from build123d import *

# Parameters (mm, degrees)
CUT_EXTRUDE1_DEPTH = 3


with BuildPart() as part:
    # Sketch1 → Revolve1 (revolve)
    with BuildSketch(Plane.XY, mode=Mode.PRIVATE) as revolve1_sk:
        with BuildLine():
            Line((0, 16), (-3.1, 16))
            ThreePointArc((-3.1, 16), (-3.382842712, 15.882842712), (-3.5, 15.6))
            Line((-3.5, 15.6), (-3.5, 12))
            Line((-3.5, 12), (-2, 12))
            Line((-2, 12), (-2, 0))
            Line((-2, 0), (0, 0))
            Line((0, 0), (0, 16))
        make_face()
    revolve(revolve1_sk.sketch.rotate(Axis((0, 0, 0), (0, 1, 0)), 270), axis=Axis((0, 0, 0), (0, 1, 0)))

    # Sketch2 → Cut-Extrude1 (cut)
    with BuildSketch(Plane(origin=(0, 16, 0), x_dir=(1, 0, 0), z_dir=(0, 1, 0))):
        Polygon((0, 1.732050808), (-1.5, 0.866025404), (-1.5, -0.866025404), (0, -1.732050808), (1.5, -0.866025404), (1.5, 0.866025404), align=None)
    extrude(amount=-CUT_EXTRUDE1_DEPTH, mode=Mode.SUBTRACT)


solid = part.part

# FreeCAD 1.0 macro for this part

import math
import FreeCAD as App
import Part
import Sketcher
from FreeCAD import Vector
Q = App.Units.Quantity


def add_polygon(sketch, points):
    """Adds a closed chain of lines whose ends are joined by coincident constraints."""
    first, n = sketch.GeometryCount, len(points)
    for a, b in zip(points, points[1:] + points[:1]):
        sketch.addGeometry(Part.LineSegment(App.Vector(*a, 0), App.Vector(*b, 0)), False)
    for i in range(n):
        sketch.addConstraint(Sketcher.Constraint("Coincident", first + i, 2, first + (i + 1) % n, 1))

doc = App.newDocument("Part")
body = doc.addObject("PartDesign::Body", "Body")

# Sketch on XY plane
sketch1 = body.newObject("Sketcher::SketchObject", "Sketch")
sketch1.AttachmentSupport = (doc.getObject("XY_Plane"), [""])
sketch1.MapMode = "FlatFace"
sketch1.addGeometry(Part.LineSegment(Vector(0, 16, 0), Vector(-3.1, 16, 0)), False)
sketch1.addGeometry(Part.ArcOfCircle(Part.Circle(Vector(-3.1, 15.6, 0), Vector(0, 0, 1), 0.4), math.radians(90), math.radians(180)), False)
sketch1.addGeometry(Part.LineSegment(Vector(-3.5, 15.6, 0), Vector(-3.5, 12, 0)), False)
sketch1.addGeometry(Part.LineSegment(Vector(-3.5, 12, 0), Vector(-2, 12, 0)), False)
sketch1.addGeometry(Part.LineSegment(Vector(-2, 12, 0), Vector(-2, 0, 0)), False)
sketch1.addGeometry(Part.LineSegment(Vector(-2, 0, 0), Vector(0, 0, 0)), False)
sketch1.addGeometry(Part.LineSegment(Vector(0, 0, 0), Vector(0, 16, 0)), False)
sketch1.addConstraint(Sketcher.Constraint("Tangent", 0, 2, 1, 1))
sketch1.addConstraint(Sketcher.Constraint("Tangent", 1, 2, 2, 1))
sketch1.addConstraint(Sketcher.Constraint("Coincident", 2, 2, 3, 1))
sketch1.addConstraint(Sketcher.Constraint("Coincident", 3, 2, 4, 1))
sketch1.addConstraint(Sketcher.Constraint("Coincident", 4, 2, 5, 1))
sketch1.addConstraint(Sketcher.Constraint("Coincident", 5, 2, 6, 1))
sketch1.addConstraint(Sketcher.Constraint("Coincident", 6, 2, 0, 1))
sketch1.addConstraint(Sketcher.Constraint("Horizontal", 0))
sketch1.addConstraint(Sketcher.Constraint("Vertical", 2))
sketch1.addConstraint(Sketcher.Constraint("Horizontal", 3))
sketch1.addConstraint(Sketcher.Constraint("Vertical", 4))
sketch1.addConstraint(Sketcher.Constraint("Horizontal", 5))
sketch1.addConstraint(Sketcher.Constraint("Vertical", 6))
sketch1.addConstraint(Sketcher.Constraint("Coincident", 5, 2, -1, 1))
sketch1.addConstraint(Sketcher.Constraint("Radius", 1, Q("0.4 mm")))
sketch1.addConstraint(Sketcher.Constraint("DistanceX", 5, 1, 5, 2, Q("2 mm")))
sketch1.addConstraint(Sketcher.Constraint("DistanceY", 4, 2, 4, 1, Q("12 mm")))
sketch1.addConstraint(Sketcher.Constraint("DistanceY", 6, 1, 6, 2, Q("16 mm")))
sketch1.addConstraint(Sketcher.Constraint("DistanceX", 0, 2, 0, 1, Q("3.1 mm")))
revolution = body.newObject("PartDesign::Revolution", "Revolution")
revolution.Profile = sketch1
revolution.ReferenceAxis = (sketch1, ["V_Axis"])
revolution.Angle = 360

# Sketch on XZ plane
sketch2 = body.newObject("Sketcher::SketchObject", "Sketch001")
sketch2.AttachmentSupport = (doc.getObject("XZ_Plane"), [""])
sketch2.MapMode = "FlatFace"
sketch2.AttachmentOffset = App.Placement(Vector(0, 0, -16), App.Rotation())
add_polygon(sketch2, [(0, -1.7), (-1.5, -0.9), (-1.5, 0.9), (0, 1.7), (1.5, 0.9), (1.5, -0.9)])  # lines 0-5
sketch2.addConstraint(Sketcher.Constraint("Vertical", 1))
sketch2.addConstraint(Sketcher.Constraint("Vertical", 4))
sketch2.addConstraint(Sketcher.Constraint("Symmetric", 0, 2, 3, 2, -1, 1))
sketch2.addConstraint(Sketcher.Constraint("Symmetric", 2, 2, 5, 2, -1, 1))
sketch2.addConstraint(Sketcher.Constraint("PointOnObject", 2, 2, -2))
sketch2.addConstraint(Sketcher.Constraint("Parallel", 2, 5))
sketch2.addConstraint(Sketcher.Constraint("Horizontal", 1, 2, 3, 2))
sketch2.addConstraint(Sketcher.Constraint("Angle", 0, Q("150 deg")))
sketch2.addConstraint(Sketcher.Constraint("DistanceX", 1, 2, 3, 2, Q("3 mm")))
sketch2.addConstraint(Sketcher.Constraint("DistanceY", 1, 1, 1, 2, Q("1.732051 mm")))
pocket1 = body.newObject("PartDesign::Pocket", "Pocket")
pocket1.Profile = sketch2
pocket1.Length = 3
pocket1.Reversed = True

doc.recompute()
